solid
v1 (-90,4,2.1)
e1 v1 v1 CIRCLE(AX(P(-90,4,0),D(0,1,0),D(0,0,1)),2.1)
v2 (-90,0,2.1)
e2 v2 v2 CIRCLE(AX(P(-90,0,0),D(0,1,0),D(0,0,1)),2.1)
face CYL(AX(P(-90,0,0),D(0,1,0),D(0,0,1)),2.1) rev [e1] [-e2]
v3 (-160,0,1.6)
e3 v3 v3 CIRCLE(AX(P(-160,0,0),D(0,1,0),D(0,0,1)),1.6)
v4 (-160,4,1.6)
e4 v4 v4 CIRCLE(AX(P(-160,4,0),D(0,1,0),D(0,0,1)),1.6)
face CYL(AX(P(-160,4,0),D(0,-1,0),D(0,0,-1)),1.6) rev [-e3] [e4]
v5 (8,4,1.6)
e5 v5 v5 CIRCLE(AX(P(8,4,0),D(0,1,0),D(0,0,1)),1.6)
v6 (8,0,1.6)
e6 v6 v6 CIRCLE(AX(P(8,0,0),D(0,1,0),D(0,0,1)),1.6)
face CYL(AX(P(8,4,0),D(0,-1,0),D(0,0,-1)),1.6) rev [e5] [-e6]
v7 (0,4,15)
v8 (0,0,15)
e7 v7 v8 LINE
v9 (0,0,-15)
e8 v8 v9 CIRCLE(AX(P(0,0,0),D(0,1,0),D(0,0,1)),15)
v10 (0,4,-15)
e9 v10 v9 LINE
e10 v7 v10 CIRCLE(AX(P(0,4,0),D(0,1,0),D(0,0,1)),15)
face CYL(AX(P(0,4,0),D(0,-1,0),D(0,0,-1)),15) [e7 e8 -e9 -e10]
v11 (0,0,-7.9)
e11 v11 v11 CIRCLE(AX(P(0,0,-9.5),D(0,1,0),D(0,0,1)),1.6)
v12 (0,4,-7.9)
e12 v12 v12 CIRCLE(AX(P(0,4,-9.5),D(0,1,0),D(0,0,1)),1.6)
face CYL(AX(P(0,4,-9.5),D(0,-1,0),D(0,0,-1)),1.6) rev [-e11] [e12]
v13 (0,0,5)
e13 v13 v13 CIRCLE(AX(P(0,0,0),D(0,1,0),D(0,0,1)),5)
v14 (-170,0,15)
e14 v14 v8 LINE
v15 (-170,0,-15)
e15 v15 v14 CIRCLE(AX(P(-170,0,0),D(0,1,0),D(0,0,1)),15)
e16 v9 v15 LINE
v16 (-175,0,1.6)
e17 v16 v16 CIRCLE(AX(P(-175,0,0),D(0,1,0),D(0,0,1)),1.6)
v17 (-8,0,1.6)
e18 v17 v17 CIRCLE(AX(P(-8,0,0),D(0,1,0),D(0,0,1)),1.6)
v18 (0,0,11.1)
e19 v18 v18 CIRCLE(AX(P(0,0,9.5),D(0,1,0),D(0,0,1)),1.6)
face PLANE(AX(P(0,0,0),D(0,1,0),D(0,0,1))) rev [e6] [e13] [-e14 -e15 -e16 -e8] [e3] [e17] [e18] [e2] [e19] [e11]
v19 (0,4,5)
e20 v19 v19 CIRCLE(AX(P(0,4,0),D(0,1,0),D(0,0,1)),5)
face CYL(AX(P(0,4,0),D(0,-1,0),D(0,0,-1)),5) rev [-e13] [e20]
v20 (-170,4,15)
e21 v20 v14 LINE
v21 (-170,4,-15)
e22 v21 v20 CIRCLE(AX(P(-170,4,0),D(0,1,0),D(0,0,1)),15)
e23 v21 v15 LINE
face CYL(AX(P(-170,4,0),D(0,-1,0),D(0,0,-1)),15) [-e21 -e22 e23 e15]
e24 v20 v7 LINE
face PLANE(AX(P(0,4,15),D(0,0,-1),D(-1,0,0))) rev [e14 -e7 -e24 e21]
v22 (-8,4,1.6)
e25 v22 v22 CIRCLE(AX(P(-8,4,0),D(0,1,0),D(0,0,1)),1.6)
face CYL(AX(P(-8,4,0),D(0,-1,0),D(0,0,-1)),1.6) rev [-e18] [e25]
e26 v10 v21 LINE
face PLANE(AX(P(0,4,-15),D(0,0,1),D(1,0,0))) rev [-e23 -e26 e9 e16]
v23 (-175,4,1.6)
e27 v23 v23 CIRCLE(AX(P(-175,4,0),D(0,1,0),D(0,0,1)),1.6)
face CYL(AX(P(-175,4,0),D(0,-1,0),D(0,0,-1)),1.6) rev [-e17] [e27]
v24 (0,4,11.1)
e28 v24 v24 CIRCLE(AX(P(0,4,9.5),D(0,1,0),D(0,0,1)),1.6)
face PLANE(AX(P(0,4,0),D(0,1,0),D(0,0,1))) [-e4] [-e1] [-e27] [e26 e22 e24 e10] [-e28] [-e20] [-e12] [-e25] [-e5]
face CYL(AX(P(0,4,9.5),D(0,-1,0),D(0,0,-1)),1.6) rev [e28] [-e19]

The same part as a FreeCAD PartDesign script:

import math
import FreeCAD as App
import Part
import Sketcher

V = App.Vector
Q = App.Units.Quantity

doc = App.newDocument("Part")
body = doc.addObject("PartDesign::Body", "Body")

# Sketch on XZ plane
sketch1 = body.newObject("Sketcher::SketchObject", "Sketch")
sketch1.AttachmentSupport = (doc.getObject("XZ_Plane"), [""])
sketch1.MapMode = "FlatFace"
sketch1.addGeometry(Part.LineSegment(V(-170, 15, 0), V(0, 15, 0)), False)
sketch1.addGeometry(Part.ArcOfCircle(Part.Circle(V(0, 0, 0), V(0, 0, 1), 15), math.radians(-90), math.radians(90)), False)
sketch1.addGeometry(Part.LineSegment(V(0, -15, 0), V(-170, -15, 0)), False)
sketch1.addGeometry(Part.ArcOfCircle(Part.Circle(V(-170, 0, 0), V(0, 0, 1), 15), math.radians(90), math.radians(270)), False)
sketch1.addGeometry(Part.Circle(V(0, 9.5, 0), V(0, 0, 1), 1.6), False)
sketch1.addGeometry(Part.Circle(V(8, 0, 0), V(0, 0, 1), 1.6), False)
sketch1.addGeometry(Part.Circle(V(0, 0, 0), V(0, 0, 1), 5), False)
sketch1.addGeometry(Part.Circle(V(-8, 0, 0), V(0, 0, 1), 1.6), False)
sketch1.addGeometry(Part.Circle(V(0, -9.5, 0), V(0, 0, 1), 1.6), False)
sketch1.addGeometry(Part.Circle(V(-160, 0, 0), V(0, 0, 1), 1.6), False)
sketch1.addGeometry(Part.Circle(V(-175, 0, 0), V(0, 0, 1), 1.6), False)
sketch1.addConstraint(Sketcher.Constraint("Tangent", 0, 2, 1, 2))
sketch1.addConstraint(Sketcher.Constraint("Tangent", 1, 1, 2, 1))
sketch1.addConstraint(Sketcher.Constraint("Tangent", 2, 2, 3, 2))
sketch1.addConstraint(Sketcher.Constraint("Tangent", 3, 1, 0, 1))
sketch1.addConstraint(Sketcher.Constraint("Horizontal", 0))
sketch1.addConstraint(Sketcher.Constraint("Horizontal", 2))
sketch1.addConstraint(Sketcher.Constraint("Coincident", 1, 3, -1, 1))
sketch1.addConstraint(Sketcher.Constraint("Coincident", 6, 3, -1, 1))
sketch1.addConstraint(Sketcher.Constraint("Equal", 4, 5))
sketch1.addConstraint(Sketcher.Constraint("Equal", 5, 7))
sketch1.addConstraint(Sketcher.Constraint("Equal", 7, 8))
sketch1.addConstraint(Sketcher.Constraint("Equal", 8, 9))
sketch1.addConstraint(Sketcher.Constraint("Equal", 9, 10))
sketch1.addConstraint(Sketcher.Constraint("Symmetric", 5, 3, 7, 3, -1, 1))
sketch1.addConstraint(Sketcher.Constraint("Symmetric", 4, 3, 8, 3, -1, 1))
sketch1.addConstraint(Sketcher.Constraint("PointOnObject", 4, 3, -2))
sketch1.addConstraint(Sketcher.Constraint("PointOnObject", 5, 3, -1))
sketch1.addConstraint(Sketcher.Constraint("PointOnObject", 9, 3, -1))
sketch1.addConstraint(Sketcher.Constraint("PointOnObject", 10, 3, -1))
sketch1.addConstraint(Sketcher.Constraint("Diameter", 6, Q("10 mm")))
sketch1.addConstraint(Sketcher.Constraint("Radius", 1, Q("15 mm")))
sketch1.addConstraint(Sketcher.Constraint("Diameter", 4, Q("3.2 mm")))
sketch1.addConstraint(Sketcher.Constraint("DistanceX", 0, 1, 0, 2, Q("170 mm")))
sketch1.addConstraint(Sketcher.Constraint("DistanceX", -1, 1, 5, 3, Q("8 mm")))
sketch1.addConstraint(Sketcher.Constraint("DistanceX", 9, 3, -1, 1, Q("160 mm")))
sketch1.addConstraint(Sketcher.Constraint("DistanceX", 10, 3, -1, 1, Q("175 mm")))
sketch1.addConstraint(Sketcher.Constraint("DistanceY", 8, 3, 4, 3, Q("19 mm")))
pad1 = body.newObject("PartDesign::Pad", "Pad")
pad1.Profile = sketch1
pad1.Length = 4
pad1.Reversed = True

# Sketch on XZ plane
sketch2 = body.newObject("Sketcher::SketchObject", "Sketch001")
sketch2.AttachmentSupport = (doc.getObject("XZ_Plane"), [""])
sketch2.MapMode = "FlatFace"
sketch2.AttachmentOffset = App.Placement(V(0, 0, -4), App.Rotation())
sketch2.addGeometry(Part.Circle(V(-90, 0, 0), V(0, 0, 1), 2.1), False)
sketch2.addConstraint(Sketcher.Constraint("PointOnObject", 0, 3, -1))
sketch2.addConstraint(Sketcher.Constraint("Diameter", 0, Q("4.2 mm")))
sketch2.addConstraint(Sketcher.Constraint("DistanceX", 0, 3, -1, 1, Q("90 mm")))
pocket1 = body.newObject("PartDesign::Pocket", "Pocket")
pocket1.Profile = sketch2
pocket1.Type = "ThroughAll"
pocket1.Reversed = True

doc.recompute()
